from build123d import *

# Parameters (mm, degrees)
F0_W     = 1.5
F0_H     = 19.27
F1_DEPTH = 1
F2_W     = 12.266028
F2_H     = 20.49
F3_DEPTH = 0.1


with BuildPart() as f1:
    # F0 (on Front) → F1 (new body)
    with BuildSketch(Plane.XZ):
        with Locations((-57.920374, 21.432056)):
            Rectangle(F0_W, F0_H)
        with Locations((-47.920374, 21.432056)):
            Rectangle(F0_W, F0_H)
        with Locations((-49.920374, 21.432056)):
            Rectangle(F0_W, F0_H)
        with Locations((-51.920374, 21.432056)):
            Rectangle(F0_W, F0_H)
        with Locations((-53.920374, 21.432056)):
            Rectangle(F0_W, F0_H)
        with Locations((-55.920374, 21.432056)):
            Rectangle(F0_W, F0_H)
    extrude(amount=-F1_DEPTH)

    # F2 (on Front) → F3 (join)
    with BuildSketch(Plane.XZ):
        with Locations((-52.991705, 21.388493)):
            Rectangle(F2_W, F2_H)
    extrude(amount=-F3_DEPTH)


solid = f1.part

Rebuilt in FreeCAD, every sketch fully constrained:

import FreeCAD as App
import Part
import Sketcher
from FreeCAD import Vector
Q = App.Units.Quantity

doc = App.newDocument("Part")
body = doc.addObject("PartDesign::Body", "Body")
body.AllowCompound = True

sketch1 = body.newObject("Sketcher::SketchObject", "Sketch")
sketch1.AttachmentSupport = (doc.getObject("XZ_Plane"), [""])
sketch1.MapMode = "FlatFace"
sketch1.addGeometry(Part.LineSegment(Vector(-58.670374, 31.067056, 0), Vector(-58.670374, 11.797056, 0)), False)
sketch1.addGeometry(Part.LineSegment(Vector(-58.670374, 11.797056, 0), Vector(-57.170374, 11.797056, 0)), False)
sketch1.addGeometry(Part.LineSegment(Vector(-57.170374, 11.797056, 0), Vector(-57.170374, 31.067056, 0)), False)
sketch1.addGeometry(Part.LineSegment(Vector(-57.170374, 31.067056, 0), Vector(-58.670374, 31.067056, 0)), False)
sketch1.addGeometry(Part.LineSegment(Vector(-48.670374, 31.067056, 0), Vector(-48.670374, 11.797056, 0)), False)
sketch1.addGeometry(Part.LineSegment(Vector(-48.670374, 11.797056, 0), Vector(-47.170374, 11.797056, 0)), False)
sketch1.addGeometry(Part.LineSegment(Vector(-47.170374, 11.797056, 0), Vector(-47.170374, 31.067056, 0)), False)
sketch1.addGeometry(Part.LineSegment(Vector(-47.170374, 31.067056, 0), Vector(-48.670374, 31.067056, 0)), False)
sketch1.addGeometry(Part.LineSegment(Vector(-50.670374, 31.067056, 0), Vector(-50.670374, 11.797056, 0)), False)
sketch1.addGeometry(Part.LineSegment(Vector(-50.670374, 11.797056, 0), Vector(-49.170374, 11.797056, 0)), False)
sketch1.addGeometry(Part.LineSegment(Vector(-49.170374, 11.797056, 0), Vector(-49.170374, 31.067056, 0)), False)
sketch1.addGeometry(Part.LineSegment(Vector(-49.170374, 31.067056, 0), Vector(-50.670374, 31.067056, 0)), False)
sketch1.addGeometry(Part.LineSegment(Vector(-52.670374, 31.067056, 0), Vector(-52.670374, 11.797056, 0)), False)
sketch1.addGeometry(Part.LineSegment(Vector(-52.670374, 11.797056, 0), Vector(-51.170374, 11.797056, 0)), False)
sketch1.addGeometry(Part.LineSegment(Vector(-51.170374, 11.797056, 0), Vector(-51.170374, 31.067056, 0)), False)
sketch1.addGeometry(Part.LineSegment(Vector(-51.170374, 31.067056, 0), Vector(-52.670374, 31.067056, 0)), False)
sketch1.addGeometry(Part.LineSegment(Vector(-54.670374, 31.067056, 0), Vector(-54.670374, 11.797056, 0)), False)
sketch1.addGeometry(Part.LineSegment(Vector(-54.670374, 11.797056, 0), Vector(-53.170374, 11.797056, 0)), False)
sketch1.addGeometry(Part.LineSegment(Vector(-53.170374, 11.797056, 0), Vector(-53.170374, 31.067056, 0)), False)
sketch1.addGeometry(Part.LineSegment(Vector(-53.170374, 31.067056, 0), Vector(-54.670374, 31.067056, 0)), False)
sketch1.addGeometry(Part.LineSegment(Vector(-56.670374, 31.067056, 0), Vector(-56.670374, 11.797056, 0)), False)
sketch1.addGeometry(Part.LineSegment(Vector(-56.670374, 11.797056, 0), Vector(-55.170374, 11.797056, 0)), False)
sketch1.addGeometry(Part.LineSegment(Vector(-55.170374, 11.797056, 0), Vector(-55.170374, 31.067056, 0)), False)
sketch1.addGeometry(Part.LineSegment(Vector(-55.170374, 31.067056, 0), Vector(-56.670374, 31.067056, 0)), False)
sketch1.addConstraint(Sketcher.Constraint("Coincident", 0, 2, 1, 1))
sketch1.addConstraint(Sketcher.Constraint("Coincident", 1, 2, 2, 1))
sketch1.addConstraint(Sketcher.Constraint("Coincident", 2, 2, 3, 1))
sketch1.addConstraint(Sketcher.Constraint("Coincident", 3, 2, 0, 1))
sketch1.addConstraint(Sketcher.Constraint("Coincident", 4, 2, 5, 1))
sketch1.addConstraint(Sketcher.Constraint("Coincident", 5, 2, 6, 1))
sketch1.addConstraint(Sketcher.Constraint("Coincident", 6, 2, 7, 1))
sketch1.addConstraint(Sketcher.Constraint("Coincident", 7, 2, 4, 1))
sketch1.addConstraint(Sketcher.Constraint("Coincident", 8, 2, 9, 1))
sketch1.addConstraint(Sketcher.Constraint("Coincident", 9, 2, 10, 1))
sketch1.addConstraint(Sketcher.Constraint("Coincident", 10, 2, 11, 1))
sketch1.addConstraint(Sketcher.Constraint("Coincident", 11, 2, 8, 1))
sketch1.addConstraint(Sketcher.Constraint("Coincident", 12, 2, 13, 1))
sketch1.addConstraint(Sketcher.Constraint("Coincident", 13, 2, 14, 1))
sketch1.addConstraint(Sketcher.Constraint("Coincident", 14, 2, 15, 1))
sketch1.addConstraint(Sketcher.Constraint("Coincident", 15, 2, 12, 1))
sketch1.addConstraint(Sketcher.Constraint("Coincident", 16, 2, 17, 1))
sketch1.addConstraint(Sketcher.Constraint("Coincident", 17, 2, 18, 1))
sketch1.addConstraint(Sketcher.Constraint("Coincident", 18, 2, 19, 1))
sketch1.addConstraint(Sketcher.Constraint("Coincident", 19, 2, 16, 1))
sketch1.addConstraint(Sketcher.Constraint("Coincident", 20, 2, 21, 1))
sketch1.addConstraint(Sketcher.Constraint("Coincident", 21, 2, 22, 1))
sketch1.addConstraint(Sketcher.Constraint("Coincident", 22, 2, 23, 1))
sketch1.addConstraint(Sketcher.Constraint("Coincident", 23, 2, 20, 1))
sketch1.addConstraint(Sketcher.Constraint("Vertical", 0))
sketch1.addConstraint(Sketcher.Constraint("Horizontal", 1))
sketch1.addConstraint(Sketcher.Constraint("Vertical", 2))
sketch1.addConstraint(Sketcher.Constraint("Horizontal", 3))
sketch1.addConstraint(Sketcher.Constraint("Vertical", 4))
sketch1.addConstraint(Sketcher.Constraint("Horizontal", 5))
sketch1.addConstraint(Sketcher.Constraint("Vertical", 6))
sketch1.addConstraint(Sketcher.Constraint("Horizontal", 7))
sketch1.addConstraint(Sketcher.Constraint("Vertical", 8))
sketch1.addConstraint(Sketcher.Constraint("Horizontal", 9))
sketch1.addConstraint(Sketcher.Constraint("Vertical", 10))
sketch1.addConstraint(Sketcher.Constraint("Horizontal", 11))
sketch1.addConstraint(Sketcher.Constraint("Vertical", 12))
sketch1.addConstraint(Sketcher.Constraint("Horizontal", 13))
sketch1.addConstraint(Sketcher.Constraint("Vertical", 14))
sketch1.addConstraint(Sketcher.Constraint("Horizontal", 15))
sketch1.addConstraint(Sketcher.Constraint("Vertical", 16))
sketch1.addConstraint(Sketcher.Constraint("Horizontal", 17))
sketch1.addConstraint(Sketcher.Constraint("Vertical", 18))
sketch1.addConstraint(Sketcher.Constraint("Horizontal", 19))
sketch1.addConstraint(Sketcher.Constraint("Vertical", 20))
sketch1.addConstraint(Sketcher.Constraint("Horizontal", 21))
sketch1.addConstraint(Sketcher.Constraint("Vertical", 22))
sketch1.addConstraint(Sketcher.Constraint("Horizontal", 23))
sketch1.addConstraint(Sketcher.Constraint("Horizontal", 1, 2, 4, 2))
sketch1.addConstraint(Sketcher.Constraint("Horizontal", 3, 2, 6, 2))
sketch1.addConstraint(Sketcher.Constraint("Horizontal", 5, 2, 8, 2))
sketch1.addConstraint(Sketcher.Constraint("Horizontal", 7, 2, 10, 2))
sketch1.addConstraint(Sketcher.Constraint("Horizontal", 9, 2, 12, 2))
sketch1.addConstraint(Sketcher.Constraint("Horizontal", 11, 2, 14, 2))
sketch1.addConstraint(Sketcher.Constraint("Horizontal", 13, 2, 16, 2))
sketch1.addConstraint(Sketcher.Constraint("Horizontal", 15, 2, 18, 2))
sketch1.addConstraint(Sketcher.Constraint("Horizontal", 17, 2, 20, 2))
sketch1.addConstraint(Sketcher.Constraint("Horizontal", 19, 2, 22, 2))
sketch1.addConstraint(Sketcher.Constraint("Equal", 3, 5))
sketch1.addConstraint(Sketcher.Constraint("Equal", 7, 9))
sketch1.addConstraint(Sketcher.Constraint("Equal", 11, 13))
sketch1.addConstraint(Sketcher.Constraint("Equal", 15, 17))
sketch1.addConstraint(Sketcher.Constraint("Equal", 19, 21))
sketch1.addConstraint(Sketcher.Constraint("DistanceX", 1, 1, 1, 2, Q("1.5 mm")))
sketch1.addConstraint(Sketcher.Constraint("DistanceX", 0, 2, 4, 2, Q("10 mm")))
sketch1.addConstraint(Sketcher.Constraint("DistanceX", 8, 2, 4, 2, Q("2 mm")))
sketch1.addConstraint(Sketcher.Constraint("DistanceX", 12, 2, 8, 2, Q("2 mm")))
sketch1.addConstraint(Sketcher.Constraint("DistanceX", 16, 2, 12, 2, Q("2 mm")))
sketch1.addConstraint(Sketcher.Constraint("DistanceX", 0, 2, 20, 2, Q("2 mm")))
sketch1.addConstraint(Sketcher.Constraint("DistanceY", 0, 2, 0, 1, Q("19.27 mm")))
sketch1.addConstraint(Sketcher.Constraint("DistanceX", 0, 2, -1, 1, Q("58.670374 mm")))
sketch1.addConstraint(Sketcher.Constraint("DistanceY", -1, 1, 0, 2, Q("11.797056 mm")))
pad1 = body.newObject("PartDesign::Pad", "Pad")
pad1.Profile = sketch1
pad1.Length = 1
pad1.Reversed = True

sketch2 = body.newObject("Sketcher::SketchObject", "Sketch001")
sketch2.AttachmentSupport = (doc.getObject("XZ_Plane"), [""])
sketch2.MapMode = "FlatFace"
sketch2.addGeometry(Part.LineSegment(Vector(-59.124719, 31.633493, 0), Vector(-59.124719, 11.143493, 0)), False)
sketch2.addGeometry(Part.LineSegment(Vector(-59.124719, 11.143493, 0), Vector(-46.858691, 11.143493, 0)), False)
sketch2.addGeometry(Part.LineSegment(Vector(-46.858691, 11.143493, 0), Vector(-46.858691, 31.633493, 0)), False)
sketch2.addGeometry(Part.LineSegment(Vector(-46.858691, 31.633493, 0), Vector(-59.124719, 31.633493, 0)), False)
sketch2.addConstraint(Sketcher.Constraint("Coincident", 0, 2, 1, 1))
sketch2.addConstraint(Sketcher.Constraint("Coincident", 1, 2, 2, 1))
sketch2.addConstraint(Sketcher.Constraint("Coincident", 2, 2, 3, 1))
sketch2.addConstraint(Sketcher.Constraint("Coincident", 3, 2, 0, 1))
sketch2.addConstraint(Sketcher.Constraint("Vertical", 0))
sketch2.addConstraint(Sketcher.Constraint("Horizontal", 1))
sketch2.addConstraint(Sketcher.Constraint("Vertical", 2))
sketch2.addConstraint(Sketcher.Constraint("Horizontal", 3))
sketch2.addConstraint(Sketcher.Constraint("DistanceY", 0, 2, 0, 1, Q("20.49 mm")))
sketch2.addConstraint(Sketcher.Constraint("DistanceX", 1, 1, 1, 2, Q("12.266028 mm")))
sketch2.addConstraint(Sketcher.Constraint("DistanceX", 0, 2, -1, 1, Q("59.124719 mm")))
sketch2.addConstraint(Sketcher.Constraint("DistanceY", -1, 1, 0, 2, Q("11.143493 mm")))
pad2 = body.newObject("PartDesign::Pad", "Pad001")
pad2.Profile = sketch2
pad2.Length = 0.1
pad2.Reversed = True

doc.recompute()
